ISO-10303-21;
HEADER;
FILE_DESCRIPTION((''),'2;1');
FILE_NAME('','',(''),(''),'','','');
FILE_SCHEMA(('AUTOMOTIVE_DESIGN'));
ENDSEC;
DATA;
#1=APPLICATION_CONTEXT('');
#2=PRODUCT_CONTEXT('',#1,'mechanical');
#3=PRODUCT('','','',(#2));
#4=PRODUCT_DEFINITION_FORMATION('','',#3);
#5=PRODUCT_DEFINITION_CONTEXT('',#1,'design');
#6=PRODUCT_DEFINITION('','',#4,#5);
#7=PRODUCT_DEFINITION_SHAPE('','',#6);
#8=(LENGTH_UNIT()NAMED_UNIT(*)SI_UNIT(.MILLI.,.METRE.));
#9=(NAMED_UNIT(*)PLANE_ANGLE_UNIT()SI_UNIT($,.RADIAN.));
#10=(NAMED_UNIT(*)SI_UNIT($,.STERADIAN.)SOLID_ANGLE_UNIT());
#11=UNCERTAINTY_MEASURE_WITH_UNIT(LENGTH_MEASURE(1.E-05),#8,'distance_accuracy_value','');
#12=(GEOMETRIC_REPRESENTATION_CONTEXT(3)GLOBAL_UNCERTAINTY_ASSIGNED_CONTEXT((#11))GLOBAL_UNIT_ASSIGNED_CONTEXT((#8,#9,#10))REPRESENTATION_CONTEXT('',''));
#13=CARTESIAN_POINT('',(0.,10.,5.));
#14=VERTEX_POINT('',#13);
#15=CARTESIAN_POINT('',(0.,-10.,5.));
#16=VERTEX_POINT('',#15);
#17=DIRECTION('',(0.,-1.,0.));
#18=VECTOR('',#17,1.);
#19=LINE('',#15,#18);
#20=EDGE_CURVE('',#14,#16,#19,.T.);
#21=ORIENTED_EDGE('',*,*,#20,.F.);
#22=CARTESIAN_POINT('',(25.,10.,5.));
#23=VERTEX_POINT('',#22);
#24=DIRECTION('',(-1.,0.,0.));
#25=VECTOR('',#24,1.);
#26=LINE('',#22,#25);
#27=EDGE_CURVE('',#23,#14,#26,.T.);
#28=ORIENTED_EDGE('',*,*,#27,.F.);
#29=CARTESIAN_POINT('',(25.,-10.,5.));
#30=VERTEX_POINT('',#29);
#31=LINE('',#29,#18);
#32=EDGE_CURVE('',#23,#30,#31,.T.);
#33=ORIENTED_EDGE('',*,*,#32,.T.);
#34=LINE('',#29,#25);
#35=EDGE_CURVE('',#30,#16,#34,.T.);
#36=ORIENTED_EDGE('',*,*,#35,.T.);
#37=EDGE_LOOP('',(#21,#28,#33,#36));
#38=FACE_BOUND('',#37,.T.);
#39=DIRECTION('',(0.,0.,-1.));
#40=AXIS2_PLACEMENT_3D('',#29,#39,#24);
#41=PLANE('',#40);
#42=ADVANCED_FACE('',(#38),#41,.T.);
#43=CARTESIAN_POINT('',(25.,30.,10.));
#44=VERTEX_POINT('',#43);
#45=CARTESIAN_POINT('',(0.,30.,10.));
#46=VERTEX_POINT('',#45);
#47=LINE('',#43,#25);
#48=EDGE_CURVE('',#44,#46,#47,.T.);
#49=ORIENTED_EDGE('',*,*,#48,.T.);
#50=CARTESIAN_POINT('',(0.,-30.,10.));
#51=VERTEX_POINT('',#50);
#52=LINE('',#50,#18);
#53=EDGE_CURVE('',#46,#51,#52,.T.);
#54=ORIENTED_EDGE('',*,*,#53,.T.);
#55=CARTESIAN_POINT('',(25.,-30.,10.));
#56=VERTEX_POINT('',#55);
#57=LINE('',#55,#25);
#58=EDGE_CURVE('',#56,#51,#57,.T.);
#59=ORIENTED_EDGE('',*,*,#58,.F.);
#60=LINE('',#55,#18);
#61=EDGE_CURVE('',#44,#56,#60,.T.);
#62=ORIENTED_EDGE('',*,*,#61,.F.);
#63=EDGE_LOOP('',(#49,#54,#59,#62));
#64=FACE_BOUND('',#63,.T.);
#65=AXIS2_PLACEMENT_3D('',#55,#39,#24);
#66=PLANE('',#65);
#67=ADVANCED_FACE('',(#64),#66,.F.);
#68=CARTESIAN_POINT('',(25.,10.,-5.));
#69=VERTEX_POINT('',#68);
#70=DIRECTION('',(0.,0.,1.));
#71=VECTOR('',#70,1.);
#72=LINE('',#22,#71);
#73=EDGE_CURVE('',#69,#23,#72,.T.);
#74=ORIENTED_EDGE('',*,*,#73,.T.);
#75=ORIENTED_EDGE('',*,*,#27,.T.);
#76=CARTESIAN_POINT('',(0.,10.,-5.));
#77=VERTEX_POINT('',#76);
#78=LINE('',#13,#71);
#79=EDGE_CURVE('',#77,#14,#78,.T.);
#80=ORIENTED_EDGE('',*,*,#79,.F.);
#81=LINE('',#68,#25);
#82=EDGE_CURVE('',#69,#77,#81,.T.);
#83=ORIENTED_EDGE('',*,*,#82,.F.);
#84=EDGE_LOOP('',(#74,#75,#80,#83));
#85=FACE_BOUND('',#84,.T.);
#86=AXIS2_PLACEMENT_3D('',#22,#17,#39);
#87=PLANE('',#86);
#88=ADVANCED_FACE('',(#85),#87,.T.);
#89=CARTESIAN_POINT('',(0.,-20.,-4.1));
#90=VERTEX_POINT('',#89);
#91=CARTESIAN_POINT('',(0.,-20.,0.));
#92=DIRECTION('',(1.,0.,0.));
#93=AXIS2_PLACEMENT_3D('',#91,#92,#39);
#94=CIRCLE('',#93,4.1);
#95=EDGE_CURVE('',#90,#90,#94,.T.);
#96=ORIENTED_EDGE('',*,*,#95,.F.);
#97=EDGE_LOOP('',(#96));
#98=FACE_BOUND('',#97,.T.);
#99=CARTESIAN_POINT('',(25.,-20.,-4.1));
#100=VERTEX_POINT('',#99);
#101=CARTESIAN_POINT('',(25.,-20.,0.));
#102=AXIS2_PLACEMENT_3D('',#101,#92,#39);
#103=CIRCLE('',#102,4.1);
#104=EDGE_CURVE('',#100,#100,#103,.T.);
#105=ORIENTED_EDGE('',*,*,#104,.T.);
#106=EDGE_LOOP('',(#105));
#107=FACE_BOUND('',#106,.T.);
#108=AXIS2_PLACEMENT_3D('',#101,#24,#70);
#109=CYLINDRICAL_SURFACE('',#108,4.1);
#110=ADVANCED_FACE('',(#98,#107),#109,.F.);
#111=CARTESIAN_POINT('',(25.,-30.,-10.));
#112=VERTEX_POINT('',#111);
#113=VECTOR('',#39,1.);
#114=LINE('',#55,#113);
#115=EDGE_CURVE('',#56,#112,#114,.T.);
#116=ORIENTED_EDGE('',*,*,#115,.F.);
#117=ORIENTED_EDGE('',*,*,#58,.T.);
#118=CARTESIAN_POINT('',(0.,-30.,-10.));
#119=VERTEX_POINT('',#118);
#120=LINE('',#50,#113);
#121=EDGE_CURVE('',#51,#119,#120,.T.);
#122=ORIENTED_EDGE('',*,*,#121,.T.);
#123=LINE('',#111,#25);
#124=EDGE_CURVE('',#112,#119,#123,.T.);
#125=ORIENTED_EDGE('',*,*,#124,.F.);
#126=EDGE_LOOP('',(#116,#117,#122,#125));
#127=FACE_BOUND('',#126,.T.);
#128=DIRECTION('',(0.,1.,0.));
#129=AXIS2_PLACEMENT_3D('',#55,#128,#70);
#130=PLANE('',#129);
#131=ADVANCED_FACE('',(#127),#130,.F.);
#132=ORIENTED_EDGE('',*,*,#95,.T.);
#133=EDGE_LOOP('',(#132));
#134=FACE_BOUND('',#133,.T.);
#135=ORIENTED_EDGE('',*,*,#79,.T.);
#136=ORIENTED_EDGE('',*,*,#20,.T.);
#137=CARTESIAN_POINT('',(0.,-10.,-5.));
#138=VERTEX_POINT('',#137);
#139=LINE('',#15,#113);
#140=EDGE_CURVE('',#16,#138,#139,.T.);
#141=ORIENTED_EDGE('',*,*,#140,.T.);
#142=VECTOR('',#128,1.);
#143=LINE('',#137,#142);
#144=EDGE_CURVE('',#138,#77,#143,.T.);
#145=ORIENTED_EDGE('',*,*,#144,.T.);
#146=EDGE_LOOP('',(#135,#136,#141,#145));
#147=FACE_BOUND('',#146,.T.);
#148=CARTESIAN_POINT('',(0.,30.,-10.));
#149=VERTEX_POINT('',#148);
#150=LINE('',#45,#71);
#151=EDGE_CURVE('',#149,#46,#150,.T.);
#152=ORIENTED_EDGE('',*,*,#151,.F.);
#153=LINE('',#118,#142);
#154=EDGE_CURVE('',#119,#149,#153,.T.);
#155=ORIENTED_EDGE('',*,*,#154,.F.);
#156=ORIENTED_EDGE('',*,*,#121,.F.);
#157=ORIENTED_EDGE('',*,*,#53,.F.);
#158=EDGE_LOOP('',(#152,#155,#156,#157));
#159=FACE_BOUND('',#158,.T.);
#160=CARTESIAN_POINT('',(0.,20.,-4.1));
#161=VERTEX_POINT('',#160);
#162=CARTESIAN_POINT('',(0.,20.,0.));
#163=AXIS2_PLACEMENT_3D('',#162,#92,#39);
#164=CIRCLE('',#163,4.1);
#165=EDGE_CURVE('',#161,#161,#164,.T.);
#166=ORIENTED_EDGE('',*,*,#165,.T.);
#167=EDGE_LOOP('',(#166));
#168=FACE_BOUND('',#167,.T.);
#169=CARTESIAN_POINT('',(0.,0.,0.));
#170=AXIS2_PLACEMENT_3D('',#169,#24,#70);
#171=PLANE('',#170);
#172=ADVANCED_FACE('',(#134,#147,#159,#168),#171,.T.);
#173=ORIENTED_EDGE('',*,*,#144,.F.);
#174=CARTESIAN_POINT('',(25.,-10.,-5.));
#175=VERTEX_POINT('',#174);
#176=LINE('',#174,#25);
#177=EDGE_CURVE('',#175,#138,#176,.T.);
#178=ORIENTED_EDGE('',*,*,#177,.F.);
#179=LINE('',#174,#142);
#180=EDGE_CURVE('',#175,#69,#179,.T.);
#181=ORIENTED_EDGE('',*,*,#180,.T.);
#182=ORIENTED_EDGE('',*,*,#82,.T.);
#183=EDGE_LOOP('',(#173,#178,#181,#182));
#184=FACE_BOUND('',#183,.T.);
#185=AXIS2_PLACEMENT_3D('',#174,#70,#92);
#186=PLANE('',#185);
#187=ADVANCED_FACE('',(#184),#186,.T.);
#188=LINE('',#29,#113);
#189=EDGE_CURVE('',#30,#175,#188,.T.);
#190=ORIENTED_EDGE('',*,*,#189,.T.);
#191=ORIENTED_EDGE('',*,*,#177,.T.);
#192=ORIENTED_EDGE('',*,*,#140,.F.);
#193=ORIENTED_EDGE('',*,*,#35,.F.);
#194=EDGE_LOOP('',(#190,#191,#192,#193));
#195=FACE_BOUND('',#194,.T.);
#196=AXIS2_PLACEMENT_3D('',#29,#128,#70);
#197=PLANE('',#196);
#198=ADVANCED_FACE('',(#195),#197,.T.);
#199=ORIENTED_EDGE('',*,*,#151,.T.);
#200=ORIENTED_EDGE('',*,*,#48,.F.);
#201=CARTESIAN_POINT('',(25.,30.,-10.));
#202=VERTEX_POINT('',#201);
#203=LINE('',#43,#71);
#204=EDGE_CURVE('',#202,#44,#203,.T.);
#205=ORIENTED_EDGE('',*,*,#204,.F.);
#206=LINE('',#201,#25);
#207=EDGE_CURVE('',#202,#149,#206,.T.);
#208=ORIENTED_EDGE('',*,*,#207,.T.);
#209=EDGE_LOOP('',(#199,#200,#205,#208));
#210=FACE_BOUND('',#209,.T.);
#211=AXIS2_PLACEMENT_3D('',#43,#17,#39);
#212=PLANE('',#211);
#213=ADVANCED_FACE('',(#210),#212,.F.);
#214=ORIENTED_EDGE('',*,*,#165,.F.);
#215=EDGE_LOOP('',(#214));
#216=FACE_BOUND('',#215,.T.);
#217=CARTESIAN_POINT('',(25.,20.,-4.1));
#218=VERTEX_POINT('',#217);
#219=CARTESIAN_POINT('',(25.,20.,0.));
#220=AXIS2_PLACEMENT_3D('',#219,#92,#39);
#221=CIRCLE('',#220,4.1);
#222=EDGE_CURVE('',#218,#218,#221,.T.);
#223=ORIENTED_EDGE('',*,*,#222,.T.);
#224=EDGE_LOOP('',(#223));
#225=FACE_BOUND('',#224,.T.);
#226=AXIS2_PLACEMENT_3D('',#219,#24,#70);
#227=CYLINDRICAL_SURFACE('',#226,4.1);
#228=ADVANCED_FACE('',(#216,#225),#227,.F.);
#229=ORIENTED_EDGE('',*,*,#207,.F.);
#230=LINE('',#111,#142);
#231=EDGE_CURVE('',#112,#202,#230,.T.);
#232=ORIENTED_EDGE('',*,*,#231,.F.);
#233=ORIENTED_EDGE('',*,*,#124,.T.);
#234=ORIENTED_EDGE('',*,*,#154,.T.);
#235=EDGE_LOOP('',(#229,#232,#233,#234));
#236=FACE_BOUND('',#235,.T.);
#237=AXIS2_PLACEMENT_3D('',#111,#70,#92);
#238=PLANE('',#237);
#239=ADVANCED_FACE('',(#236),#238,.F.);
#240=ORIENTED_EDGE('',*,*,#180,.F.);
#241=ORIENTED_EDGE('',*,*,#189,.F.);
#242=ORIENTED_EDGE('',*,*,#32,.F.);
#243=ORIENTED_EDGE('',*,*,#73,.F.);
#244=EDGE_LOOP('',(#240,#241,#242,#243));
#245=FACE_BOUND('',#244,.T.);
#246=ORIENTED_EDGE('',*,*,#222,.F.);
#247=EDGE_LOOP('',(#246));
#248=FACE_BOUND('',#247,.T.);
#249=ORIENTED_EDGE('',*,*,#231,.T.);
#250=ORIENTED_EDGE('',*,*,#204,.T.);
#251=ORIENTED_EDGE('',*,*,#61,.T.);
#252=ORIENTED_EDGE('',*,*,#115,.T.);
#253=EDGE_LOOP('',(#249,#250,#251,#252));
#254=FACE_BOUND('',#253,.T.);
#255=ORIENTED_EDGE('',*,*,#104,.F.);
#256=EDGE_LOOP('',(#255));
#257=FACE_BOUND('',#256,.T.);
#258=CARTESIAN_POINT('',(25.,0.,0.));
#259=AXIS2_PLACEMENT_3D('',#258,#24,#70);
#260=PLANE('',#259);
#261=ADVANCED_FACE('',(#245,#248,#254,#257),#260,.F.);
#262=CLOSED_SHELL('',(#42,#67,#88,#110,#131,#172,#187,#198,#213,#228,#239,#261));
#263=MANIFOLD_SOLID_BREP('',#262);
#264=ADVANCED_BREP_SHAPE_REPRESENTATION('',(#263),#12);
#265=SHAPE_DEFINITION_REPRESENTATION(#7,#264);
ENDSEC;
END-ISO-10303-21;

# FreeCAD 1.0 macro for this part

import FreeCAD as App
import Part
import Sketcher
from FreeCAD import Vector


def add_polygon(sketch, points):
    """Adds a closed chain of lines whose ends are joined by coincident constraints."""
    first, n = sketch.GeometryCount, len(points)
    for a, b in zip(points, points[1:] + points[:1]):
        sketch.addGeometry(Part.LineSegment(App.Vector(*a, 0), App.Vector(*b, 0)), False)
    for i in range(n):
        sketch.addConstraint(Sketcher.Constraint("Coincident", first + i, 2, first + (i + 1) % n, 1))

doc = App.newDocument("Part")
params = doc.addObject("Spreadsheet::Sheet", "Params")
for row, (alias, value) in enumerate([
    ("sketch1_diameter", "8.2 mm"),
    ("sketch1_width", "60 mm"),
    ("sketch1_width2", "20 mm"),
    ("sketch1_height", "10 mm"),
    ("pad1_length", "25 mm"),
], start=1):
    params.set(f"A{row}", alias)
    params.set(f"B{row}", "=" + value)
    params.setAlias(f"B{row}", alias)

body = doc.addObject("PartDesign::Body", "Body")

sketch1 = doc.addObject("Sketcher::SketchObject", "Sketch")
body.addObject(sketch1)
sketch1.AttachmentSupport = (doc.YZ_Plane, [""])
sketch1.MapMode = "FlatFace"
add_polygon(sketch1, [(30, 10), (-30, 10), (-30, -10), (30, -10)])
sketch1.addGeometry(Part.Circle(Vector(-20, 0, 0), Vector(0, 0, 1), 4.1), False)
add_polygon(sketch1, [(-10, -5), (-10, 5), (10, 5), (10, -5)])
sketch1.addGeometry(Part.Circle(Vector(20, 0, 0), Vector(0, 0, 1), 4.1), False)
sketch1.addConstraint(Sketcher.Constraint("Horizontal", 0))
sketch1.addConstraint(Sketcher.Constraint("Vertical", 1))
sketch1.addConstraint(Sketcher.Constraint("Horizontal", 2))
sketch1.addConstraint(Sketcher.Constraint("Vertical", 3))
sketch1.addConstraint(Sketcher.Constraint("Vertical", 5))
sketch1.addConstraint(Sketcher.Constraint("Horizontal", 6))
sketch1.addConstraint(Sketcher.Constraint("Vertical", 7))
sketch1.addConstraint(Sketcher.Constraint("Horizontal", 8))
sketch1.addConstraint(Sketcher.Constraint("Equal", 4, 9))
sketch1.addConstraint(Sketcher.Constraint("Symmetric", 4, 3, 9, 3, -1, 1))
sketch1.addConstraint(Sketcher.Constraint("Symmetric", 0, 2, 2, 2, -1, 1))
sketch1.addConstraint(Sketcher.Constraint("Symmetric", 5, 2, 7, 2, -1, 1))
sketch1.addConstraint(Sketcher.Constraint("PointOnObject", 4, 3, -1))
sketch1.addConstraint(Sketcher.Constraint("Equal", 8, 1))
sketch1.addConstraint(Sketcher.Constraint("Diameter", 4, 8.2))
sketch1.addConstraint(Sketcher.Constraint("DistanceX", 0, 2, 0, 1, 60.0))
sketch1.addConstraint(Sketcher.Constraint("DistanceX", 6, 1, 6, 2, 20.0))
sketch1.addConstraint(Sketcher.Constraint("DistanceY", 5, 1, 5, 2, 10.0))
sketch1.addConstraint(Sketcher.Constraint("DistanceX", 4, 3, -1, 1, 20.0))
sketch1.setExpression("Constraints[22]", "Params.sketch1_diameter")
sketch1.setExpression("Constraints[23]", "Params.sketch1_width")
sketch1.setExpression("Constraints[24]", "Params.sketch1_width2")
sketch1.setExpression("Constraints[25]", "Params.sketch1_height")
pad1 = doc.addObject("PartDesign::Pad", "Pad")
body.addObject(pad1)
pad1.Profile = sketch1
pad1.setExpression("Length", "Params.pad1_length")

doc.recompute()
